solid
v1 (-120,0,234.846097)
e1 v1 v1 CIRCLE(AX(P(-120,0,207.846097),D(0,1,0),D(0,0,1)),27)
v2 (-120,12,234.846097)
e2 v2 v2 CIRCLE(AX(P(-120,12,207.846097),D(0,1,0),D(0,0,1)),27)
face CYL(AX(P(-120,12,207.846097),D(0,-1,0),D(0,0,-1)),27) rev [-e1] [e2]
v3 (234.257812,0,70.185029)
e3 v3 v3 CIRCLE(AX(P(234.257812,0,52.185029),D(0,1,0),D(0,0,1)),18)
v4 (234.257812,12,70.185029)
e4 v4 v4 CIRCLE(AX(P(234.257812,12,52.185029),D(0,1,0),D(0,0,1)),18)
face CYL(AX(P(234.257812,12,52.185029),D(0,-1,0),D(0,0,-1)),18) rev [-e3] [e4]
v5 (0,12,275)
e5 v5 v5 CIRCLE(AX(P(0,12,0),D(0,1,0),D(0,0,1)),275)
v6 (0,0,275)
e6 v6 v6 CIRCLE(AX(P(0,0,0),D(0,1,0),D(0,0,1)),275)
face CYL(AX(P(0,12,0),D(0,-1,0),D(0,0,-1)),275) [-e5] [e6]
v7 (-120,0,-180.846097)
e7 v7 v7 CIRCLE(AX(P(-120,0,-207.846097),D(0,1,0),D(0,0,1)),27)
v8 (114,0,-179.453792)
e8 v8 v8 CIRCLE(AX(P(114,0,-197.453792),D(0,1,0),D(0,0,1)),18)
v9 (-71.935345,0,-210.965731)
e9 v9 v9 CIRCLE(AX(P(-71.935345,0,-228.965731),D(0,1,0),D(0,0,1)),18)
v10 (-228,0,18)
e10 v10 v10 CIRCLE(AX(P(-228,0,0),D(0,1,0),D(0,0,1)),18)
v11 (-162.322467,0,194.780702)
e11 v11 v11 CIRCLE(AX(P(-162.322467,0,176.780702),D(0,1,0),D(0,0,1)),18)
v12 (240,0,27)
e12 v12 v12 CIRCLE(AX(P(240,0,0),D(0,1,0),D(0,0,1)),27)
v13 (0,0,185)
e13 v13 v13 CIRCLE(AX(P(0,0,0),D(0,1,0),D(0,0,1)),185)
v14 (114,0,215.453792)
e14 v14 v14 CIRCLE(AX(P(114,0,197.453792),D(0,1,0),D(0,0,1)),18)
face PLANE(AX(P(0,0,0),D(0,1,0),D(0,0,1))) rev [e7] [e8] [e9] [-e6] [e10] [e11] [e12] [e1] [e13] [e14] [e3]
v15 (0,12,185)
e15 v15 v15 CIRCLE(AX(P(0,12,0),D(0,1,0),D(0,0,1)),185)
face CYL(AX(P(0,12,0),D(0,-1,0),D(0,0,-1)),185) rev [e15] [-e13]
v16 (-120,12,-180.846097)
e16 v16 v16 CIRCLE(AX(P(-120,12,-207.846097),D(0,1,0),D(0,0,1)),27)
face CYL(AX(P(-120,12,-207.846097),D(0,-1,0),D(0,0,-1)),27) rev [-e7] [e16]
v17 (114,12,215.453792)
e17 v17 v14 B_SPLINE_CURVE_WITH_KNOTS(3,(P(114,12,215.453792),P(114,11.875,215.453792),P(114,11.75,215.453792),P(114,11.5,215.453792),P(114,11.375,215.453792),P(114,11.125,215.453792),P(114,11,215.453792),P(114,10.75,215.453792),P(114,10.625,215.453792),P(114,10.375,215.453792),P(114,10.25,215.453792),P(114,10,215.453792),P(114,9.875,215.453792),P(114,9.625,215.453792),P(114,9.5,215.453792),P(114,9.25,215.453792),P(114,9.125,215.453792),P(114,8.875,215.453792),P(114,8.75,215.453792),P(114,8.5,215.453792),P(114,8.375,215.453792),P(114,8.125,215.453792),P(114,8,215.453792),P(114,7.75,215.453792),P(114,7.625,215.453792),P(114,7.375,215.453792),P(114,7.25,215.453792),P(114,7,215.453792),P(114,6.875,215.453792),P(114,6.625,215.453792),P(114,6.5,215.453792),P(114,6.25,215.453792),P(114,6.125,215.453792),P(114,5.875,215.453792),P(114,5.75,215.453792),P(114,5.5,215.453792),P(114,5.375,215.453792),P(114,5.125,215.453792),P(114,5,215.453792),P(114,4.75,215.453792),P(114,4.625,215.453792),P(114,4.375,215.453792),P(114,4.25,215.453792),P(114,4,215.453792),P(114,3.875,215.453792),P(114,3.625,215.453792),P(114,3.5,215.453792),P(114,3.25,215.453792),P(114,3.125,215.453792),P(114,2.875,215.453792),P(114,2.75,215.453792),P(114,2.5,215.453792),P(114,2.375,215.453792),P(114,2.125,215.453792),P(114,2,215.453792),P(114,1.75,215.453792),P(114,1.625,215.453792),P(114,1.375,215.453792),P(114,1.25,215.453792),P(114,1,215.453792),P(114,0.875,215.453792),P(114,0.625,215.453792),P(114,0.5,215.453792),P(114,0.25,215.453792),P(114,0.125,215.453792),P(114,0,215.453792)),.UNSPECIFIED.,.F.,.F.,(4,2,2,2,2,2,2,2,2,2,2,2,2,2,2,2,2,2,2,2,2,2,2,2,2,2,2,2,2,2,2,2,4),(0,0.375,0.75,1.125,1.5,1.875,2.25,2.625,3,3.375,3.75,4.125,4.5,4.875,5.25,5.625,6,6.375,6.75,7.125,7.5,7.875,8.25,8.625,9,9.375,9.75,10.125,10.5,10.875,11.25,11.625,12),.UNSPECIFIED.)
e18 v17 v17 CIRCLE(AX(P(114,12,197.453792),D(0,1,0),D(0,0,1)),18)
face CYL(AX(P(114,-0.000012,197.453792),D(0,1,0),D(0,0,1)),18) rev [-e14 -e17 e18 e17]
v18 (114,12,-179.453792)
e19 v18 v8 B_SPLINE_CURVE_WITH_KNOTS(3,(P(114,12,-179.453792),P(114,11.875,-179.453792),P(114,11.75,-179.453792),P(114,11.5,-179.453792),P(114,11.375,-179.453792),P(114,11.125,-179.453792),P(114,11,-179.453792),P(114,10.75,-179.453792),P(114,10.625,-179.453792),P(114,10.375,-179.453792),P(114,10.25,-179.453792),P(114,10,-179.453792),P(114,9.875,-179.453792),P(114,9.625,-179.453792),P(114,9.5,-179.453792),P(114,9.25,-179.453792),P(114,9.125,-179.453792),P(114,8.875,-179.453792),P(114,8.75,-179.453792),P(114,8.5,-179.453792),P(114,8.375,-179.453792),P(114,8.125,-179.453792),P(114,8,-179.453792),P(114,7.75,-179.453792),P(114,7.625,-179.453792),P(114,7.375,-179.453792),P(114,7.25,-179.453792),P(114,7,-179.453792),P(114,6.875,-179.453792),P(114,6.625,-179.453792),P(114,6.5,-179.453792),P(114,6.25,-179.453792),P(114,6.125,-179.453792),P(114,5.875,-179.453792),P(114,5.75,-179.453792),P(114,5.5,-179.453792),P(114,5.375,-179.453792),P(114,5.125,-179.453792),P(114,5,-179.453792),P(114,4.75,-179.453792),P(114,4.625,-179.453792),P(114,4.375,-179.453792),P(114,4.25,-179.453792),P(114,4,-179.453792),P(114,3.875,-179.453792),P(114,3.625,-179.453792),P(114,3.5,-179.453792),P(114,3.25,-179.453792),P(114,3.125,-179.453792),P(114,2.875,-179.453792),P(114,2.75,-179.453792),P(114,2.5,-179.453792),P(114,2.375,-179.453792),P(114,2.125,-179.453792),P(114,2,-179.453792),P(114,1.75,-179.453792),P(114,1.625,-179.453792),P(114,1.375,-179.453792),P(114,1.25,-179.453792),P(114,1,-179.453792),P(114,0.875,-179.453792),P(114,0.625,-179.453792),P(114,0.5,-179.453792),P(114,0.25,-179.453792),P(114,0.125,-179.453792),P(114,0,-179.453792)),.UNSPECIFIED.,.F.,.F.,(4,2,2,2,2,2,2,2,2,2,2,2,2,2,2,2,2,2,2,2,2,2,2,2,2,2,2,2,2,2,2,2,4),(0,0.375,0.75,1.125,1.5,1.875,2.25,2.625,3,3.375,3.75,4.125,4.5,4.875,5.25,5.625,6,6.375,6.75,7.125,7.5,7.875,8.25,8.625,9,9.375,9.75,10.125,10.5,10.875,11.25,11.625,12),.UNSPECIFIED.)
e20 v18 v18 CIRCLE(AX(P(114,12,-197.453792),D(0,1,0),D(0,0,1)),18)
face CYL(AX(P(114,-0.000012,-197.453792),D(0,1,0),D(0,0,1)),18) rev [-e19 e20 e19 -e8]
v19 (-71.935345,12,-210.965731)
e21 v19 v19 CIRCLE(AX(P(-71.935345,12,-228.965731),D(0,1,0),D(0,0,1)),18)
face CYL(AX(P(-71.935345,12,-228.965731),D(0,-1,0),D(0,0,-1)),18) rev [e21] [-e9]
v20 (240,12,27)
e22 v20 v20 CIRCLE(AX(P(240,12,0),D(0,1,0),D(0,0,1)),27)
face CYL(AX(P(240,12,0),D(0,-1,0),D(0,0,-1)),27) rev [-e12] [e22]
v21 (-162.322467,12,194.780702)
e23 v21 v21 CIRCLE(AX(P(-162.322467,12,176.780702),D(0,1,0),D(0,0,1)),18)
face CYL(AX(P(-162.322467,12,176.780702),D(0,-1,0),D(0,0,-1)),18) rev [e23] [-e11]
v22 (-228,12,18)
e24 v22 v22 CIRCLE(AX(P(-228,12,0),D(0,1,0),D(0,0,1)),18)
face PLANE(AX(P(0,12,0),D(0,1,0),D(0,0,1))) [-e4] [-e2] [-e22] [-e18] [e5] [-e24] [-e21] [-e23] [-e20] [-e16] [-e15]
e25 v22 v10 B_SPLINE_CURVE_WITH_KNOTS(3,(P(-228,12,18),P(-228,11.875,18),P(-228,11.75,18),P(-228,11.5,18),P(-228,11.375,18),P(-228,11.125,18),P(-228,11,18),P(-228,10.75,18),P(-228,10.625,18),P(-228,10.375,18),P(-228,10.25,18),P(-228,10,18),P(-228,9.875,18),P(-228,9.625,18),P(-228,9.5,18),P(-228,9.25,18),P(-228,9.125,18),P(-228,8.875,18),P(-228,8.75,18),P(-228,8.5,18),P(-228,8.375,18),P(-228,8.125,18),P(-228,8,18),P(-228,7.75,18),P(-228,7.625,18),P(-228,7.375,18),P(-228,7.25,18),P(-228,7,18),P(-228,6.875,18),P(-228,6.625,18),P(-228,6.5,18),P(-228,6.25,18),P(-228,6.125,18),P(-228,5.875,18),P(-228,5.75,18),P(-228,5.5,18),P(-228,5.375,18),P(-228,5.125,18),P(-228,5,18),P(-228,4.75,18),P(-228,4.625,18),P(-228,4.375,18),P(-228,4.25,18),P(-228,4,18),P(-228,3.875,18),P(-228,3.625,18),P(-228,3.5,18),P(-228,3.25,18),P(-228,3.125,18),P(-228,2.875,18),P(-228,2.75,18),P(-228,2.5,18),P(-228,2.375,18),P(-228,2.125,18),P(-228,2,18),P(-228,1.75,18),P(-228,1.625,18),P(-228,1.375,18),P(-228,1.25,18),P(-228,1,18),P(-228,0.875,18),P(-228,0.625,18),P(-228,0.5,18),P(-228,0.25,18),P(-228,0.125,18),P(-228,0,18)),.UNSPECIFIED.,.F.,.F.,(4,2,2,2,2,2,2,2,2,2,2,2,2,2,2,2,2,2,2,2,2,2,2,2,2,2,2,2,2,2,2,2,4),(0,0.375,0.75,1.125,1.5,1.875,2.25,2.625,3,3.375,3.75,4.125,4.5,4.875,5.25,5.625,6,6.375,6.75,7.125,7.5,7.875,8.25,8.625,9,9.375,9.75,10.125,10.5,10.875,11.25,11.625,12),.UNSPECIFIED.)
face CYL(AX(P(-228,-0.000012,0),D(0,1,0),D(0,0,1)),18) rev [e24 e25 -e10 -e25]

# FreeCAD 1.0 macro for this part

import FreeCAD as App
import Part
import Sketcher
from FreeCAD import Vector

doc = App.newDocument("Part")
body = doc.addObject("PartDesign::Body", "Body")

sketch1 = body.newObject("Sketcher::SketchObject", "Sketch")
sketch1.AttachmentSupport = (doc.getObject("XZ_Plane"), [""])
sketch1.MapMode = "FlatFace"
sketch1.addGeometry([
    Part.Circle(Vector(0, 0, 0), Vector(0, 0, 1), 275),
    Part.Circle(Vector(-120, -208, 0), Vector(0, 0, 1), 27),
    Part.Circle(Vector(-72, -229, 0), Vector(0, 0, 1), 18),
    Part.Circle(Vector(-162, 177, 0), Vector(0, 0, 1), 18),
    Part.Circle(Vector(-120, 208, 0), Vector(0, 0, 1), 27),
    Part.Circle(Vector(0, 0, 0), Vector(0, 0, 1), 185),
    Part.Circle(Vector(234, 52, 0), Vector(0, 0, 1), 18),
    Part.Circle(Vector(240, 0, 0), Vector(0, 0, 1), 27),
], False)
sketch1.addConstraint([
    Sketcher.Constraint("Coincident", 0, 3, -1, 1),
    Sketcher.Constraint("Coincident", 5, 3, -1, 1),
    Sketcher.Constraint("Equal", 2, 3),
    Sketcher.Constraint("Equal", 1, 4),
    Sketcher.Constraint("Equal", 3, 6),
    Sketcher.Constraint("Equal", 4, 7),
    Sketcher.Constraint("Symmetric", 1, 3, 4, 3, -1),
    Sketcher.Constraint("PointOnObject", 7, 3, -1),
    Sketcher.Constraint("Diameter", 0, 550.0),
    Sketcher.Constraint("Diameter", 1, 54.0),
    Sketcher.Constraint("Diameter", 2, 36.0),
    Sketcher.Constraint("Diameter", 5, 370.0),
    Sketcher.Constraint("DistanceX", 1, 3, -1, 1, 120.0),
    Sketcher.Constraint("DistanceX", -1, 1, 7, 3, 240.0),
    Sketcher.Constraint("DistanceY", 1, 3, 3, 3, 384.626799),
    Sketcher.Constraint("DistanceY", 2, 3, -1, 1, 228.965731),
    Sketcher.Constraint("DistanceY", -1, 1, 6, 3, 52.185029),
    Sketcher.Constraint("DistanceY", 2, 3, 4, 3, 436.811828),
    Sketcher.Constraint("DistanceX", 3, 3, 6, 3, 396.58028),
    Sketcher.Constraint("DistanceX", 2, 3, -1, 1, 71.935345),
    Sketcher.Constraint("DistanceX", 3, 3, -1, 1, 162.322467),
])
pad1 = body.newObject("PartDesign::Pad", "Pad")
pad1.Profile = sketch1
pad1.Length = 12
pad1.Reversed = True

sketch2 = body.newObject("Sketcher::SketchObject", "Sketch001")
sketch2.AttachmentSupport = (doc.getObject("XZ_Plane"), [""])
sketch2.MapMode = "FlatFace"
sketch2.addGeometry([
    Part.Circle(Vector(-228, 0, 0), Vector(0, 0, 1), 18),
    Part.Circle(Vector(114, -197, 0), Vector(0, 0, 1), 18),
    Part.Circle(Vector(114, 197, 0), Vector(0, 0, 1), 18),
], False)
sketch2.addConstraint([
    Sketcher.Constraint("Equal", 0, 1),
    Sketcher.Constraint("Equal", 1, 2),
    Sketcher.Constraint("Symmetric", 1, 3, 2, 3, -1),
    Sketcher.Constraint("PointOnObject", 0, 3, -1),
    Sketcher.Constraint("Diameter", 0, 36.0),
    Sketcher.Constraint("DistanceX", 0, 3, -1, 1, 228.0),
    Sketcher.Constraint("DistanceX", -1, 1, 1, 3, 114.0),
    Sketcher.Constraint("DistanceY", 1, 3, -1, 1, 197.453792),
])
pocket1 = body.newObject("PartDesign::Pocket", "Pocket")
pocket1.Profile = sketch2
pocket1.Type = "ThroughAll"
pocket1.Midplane = True

doc.recompute()
